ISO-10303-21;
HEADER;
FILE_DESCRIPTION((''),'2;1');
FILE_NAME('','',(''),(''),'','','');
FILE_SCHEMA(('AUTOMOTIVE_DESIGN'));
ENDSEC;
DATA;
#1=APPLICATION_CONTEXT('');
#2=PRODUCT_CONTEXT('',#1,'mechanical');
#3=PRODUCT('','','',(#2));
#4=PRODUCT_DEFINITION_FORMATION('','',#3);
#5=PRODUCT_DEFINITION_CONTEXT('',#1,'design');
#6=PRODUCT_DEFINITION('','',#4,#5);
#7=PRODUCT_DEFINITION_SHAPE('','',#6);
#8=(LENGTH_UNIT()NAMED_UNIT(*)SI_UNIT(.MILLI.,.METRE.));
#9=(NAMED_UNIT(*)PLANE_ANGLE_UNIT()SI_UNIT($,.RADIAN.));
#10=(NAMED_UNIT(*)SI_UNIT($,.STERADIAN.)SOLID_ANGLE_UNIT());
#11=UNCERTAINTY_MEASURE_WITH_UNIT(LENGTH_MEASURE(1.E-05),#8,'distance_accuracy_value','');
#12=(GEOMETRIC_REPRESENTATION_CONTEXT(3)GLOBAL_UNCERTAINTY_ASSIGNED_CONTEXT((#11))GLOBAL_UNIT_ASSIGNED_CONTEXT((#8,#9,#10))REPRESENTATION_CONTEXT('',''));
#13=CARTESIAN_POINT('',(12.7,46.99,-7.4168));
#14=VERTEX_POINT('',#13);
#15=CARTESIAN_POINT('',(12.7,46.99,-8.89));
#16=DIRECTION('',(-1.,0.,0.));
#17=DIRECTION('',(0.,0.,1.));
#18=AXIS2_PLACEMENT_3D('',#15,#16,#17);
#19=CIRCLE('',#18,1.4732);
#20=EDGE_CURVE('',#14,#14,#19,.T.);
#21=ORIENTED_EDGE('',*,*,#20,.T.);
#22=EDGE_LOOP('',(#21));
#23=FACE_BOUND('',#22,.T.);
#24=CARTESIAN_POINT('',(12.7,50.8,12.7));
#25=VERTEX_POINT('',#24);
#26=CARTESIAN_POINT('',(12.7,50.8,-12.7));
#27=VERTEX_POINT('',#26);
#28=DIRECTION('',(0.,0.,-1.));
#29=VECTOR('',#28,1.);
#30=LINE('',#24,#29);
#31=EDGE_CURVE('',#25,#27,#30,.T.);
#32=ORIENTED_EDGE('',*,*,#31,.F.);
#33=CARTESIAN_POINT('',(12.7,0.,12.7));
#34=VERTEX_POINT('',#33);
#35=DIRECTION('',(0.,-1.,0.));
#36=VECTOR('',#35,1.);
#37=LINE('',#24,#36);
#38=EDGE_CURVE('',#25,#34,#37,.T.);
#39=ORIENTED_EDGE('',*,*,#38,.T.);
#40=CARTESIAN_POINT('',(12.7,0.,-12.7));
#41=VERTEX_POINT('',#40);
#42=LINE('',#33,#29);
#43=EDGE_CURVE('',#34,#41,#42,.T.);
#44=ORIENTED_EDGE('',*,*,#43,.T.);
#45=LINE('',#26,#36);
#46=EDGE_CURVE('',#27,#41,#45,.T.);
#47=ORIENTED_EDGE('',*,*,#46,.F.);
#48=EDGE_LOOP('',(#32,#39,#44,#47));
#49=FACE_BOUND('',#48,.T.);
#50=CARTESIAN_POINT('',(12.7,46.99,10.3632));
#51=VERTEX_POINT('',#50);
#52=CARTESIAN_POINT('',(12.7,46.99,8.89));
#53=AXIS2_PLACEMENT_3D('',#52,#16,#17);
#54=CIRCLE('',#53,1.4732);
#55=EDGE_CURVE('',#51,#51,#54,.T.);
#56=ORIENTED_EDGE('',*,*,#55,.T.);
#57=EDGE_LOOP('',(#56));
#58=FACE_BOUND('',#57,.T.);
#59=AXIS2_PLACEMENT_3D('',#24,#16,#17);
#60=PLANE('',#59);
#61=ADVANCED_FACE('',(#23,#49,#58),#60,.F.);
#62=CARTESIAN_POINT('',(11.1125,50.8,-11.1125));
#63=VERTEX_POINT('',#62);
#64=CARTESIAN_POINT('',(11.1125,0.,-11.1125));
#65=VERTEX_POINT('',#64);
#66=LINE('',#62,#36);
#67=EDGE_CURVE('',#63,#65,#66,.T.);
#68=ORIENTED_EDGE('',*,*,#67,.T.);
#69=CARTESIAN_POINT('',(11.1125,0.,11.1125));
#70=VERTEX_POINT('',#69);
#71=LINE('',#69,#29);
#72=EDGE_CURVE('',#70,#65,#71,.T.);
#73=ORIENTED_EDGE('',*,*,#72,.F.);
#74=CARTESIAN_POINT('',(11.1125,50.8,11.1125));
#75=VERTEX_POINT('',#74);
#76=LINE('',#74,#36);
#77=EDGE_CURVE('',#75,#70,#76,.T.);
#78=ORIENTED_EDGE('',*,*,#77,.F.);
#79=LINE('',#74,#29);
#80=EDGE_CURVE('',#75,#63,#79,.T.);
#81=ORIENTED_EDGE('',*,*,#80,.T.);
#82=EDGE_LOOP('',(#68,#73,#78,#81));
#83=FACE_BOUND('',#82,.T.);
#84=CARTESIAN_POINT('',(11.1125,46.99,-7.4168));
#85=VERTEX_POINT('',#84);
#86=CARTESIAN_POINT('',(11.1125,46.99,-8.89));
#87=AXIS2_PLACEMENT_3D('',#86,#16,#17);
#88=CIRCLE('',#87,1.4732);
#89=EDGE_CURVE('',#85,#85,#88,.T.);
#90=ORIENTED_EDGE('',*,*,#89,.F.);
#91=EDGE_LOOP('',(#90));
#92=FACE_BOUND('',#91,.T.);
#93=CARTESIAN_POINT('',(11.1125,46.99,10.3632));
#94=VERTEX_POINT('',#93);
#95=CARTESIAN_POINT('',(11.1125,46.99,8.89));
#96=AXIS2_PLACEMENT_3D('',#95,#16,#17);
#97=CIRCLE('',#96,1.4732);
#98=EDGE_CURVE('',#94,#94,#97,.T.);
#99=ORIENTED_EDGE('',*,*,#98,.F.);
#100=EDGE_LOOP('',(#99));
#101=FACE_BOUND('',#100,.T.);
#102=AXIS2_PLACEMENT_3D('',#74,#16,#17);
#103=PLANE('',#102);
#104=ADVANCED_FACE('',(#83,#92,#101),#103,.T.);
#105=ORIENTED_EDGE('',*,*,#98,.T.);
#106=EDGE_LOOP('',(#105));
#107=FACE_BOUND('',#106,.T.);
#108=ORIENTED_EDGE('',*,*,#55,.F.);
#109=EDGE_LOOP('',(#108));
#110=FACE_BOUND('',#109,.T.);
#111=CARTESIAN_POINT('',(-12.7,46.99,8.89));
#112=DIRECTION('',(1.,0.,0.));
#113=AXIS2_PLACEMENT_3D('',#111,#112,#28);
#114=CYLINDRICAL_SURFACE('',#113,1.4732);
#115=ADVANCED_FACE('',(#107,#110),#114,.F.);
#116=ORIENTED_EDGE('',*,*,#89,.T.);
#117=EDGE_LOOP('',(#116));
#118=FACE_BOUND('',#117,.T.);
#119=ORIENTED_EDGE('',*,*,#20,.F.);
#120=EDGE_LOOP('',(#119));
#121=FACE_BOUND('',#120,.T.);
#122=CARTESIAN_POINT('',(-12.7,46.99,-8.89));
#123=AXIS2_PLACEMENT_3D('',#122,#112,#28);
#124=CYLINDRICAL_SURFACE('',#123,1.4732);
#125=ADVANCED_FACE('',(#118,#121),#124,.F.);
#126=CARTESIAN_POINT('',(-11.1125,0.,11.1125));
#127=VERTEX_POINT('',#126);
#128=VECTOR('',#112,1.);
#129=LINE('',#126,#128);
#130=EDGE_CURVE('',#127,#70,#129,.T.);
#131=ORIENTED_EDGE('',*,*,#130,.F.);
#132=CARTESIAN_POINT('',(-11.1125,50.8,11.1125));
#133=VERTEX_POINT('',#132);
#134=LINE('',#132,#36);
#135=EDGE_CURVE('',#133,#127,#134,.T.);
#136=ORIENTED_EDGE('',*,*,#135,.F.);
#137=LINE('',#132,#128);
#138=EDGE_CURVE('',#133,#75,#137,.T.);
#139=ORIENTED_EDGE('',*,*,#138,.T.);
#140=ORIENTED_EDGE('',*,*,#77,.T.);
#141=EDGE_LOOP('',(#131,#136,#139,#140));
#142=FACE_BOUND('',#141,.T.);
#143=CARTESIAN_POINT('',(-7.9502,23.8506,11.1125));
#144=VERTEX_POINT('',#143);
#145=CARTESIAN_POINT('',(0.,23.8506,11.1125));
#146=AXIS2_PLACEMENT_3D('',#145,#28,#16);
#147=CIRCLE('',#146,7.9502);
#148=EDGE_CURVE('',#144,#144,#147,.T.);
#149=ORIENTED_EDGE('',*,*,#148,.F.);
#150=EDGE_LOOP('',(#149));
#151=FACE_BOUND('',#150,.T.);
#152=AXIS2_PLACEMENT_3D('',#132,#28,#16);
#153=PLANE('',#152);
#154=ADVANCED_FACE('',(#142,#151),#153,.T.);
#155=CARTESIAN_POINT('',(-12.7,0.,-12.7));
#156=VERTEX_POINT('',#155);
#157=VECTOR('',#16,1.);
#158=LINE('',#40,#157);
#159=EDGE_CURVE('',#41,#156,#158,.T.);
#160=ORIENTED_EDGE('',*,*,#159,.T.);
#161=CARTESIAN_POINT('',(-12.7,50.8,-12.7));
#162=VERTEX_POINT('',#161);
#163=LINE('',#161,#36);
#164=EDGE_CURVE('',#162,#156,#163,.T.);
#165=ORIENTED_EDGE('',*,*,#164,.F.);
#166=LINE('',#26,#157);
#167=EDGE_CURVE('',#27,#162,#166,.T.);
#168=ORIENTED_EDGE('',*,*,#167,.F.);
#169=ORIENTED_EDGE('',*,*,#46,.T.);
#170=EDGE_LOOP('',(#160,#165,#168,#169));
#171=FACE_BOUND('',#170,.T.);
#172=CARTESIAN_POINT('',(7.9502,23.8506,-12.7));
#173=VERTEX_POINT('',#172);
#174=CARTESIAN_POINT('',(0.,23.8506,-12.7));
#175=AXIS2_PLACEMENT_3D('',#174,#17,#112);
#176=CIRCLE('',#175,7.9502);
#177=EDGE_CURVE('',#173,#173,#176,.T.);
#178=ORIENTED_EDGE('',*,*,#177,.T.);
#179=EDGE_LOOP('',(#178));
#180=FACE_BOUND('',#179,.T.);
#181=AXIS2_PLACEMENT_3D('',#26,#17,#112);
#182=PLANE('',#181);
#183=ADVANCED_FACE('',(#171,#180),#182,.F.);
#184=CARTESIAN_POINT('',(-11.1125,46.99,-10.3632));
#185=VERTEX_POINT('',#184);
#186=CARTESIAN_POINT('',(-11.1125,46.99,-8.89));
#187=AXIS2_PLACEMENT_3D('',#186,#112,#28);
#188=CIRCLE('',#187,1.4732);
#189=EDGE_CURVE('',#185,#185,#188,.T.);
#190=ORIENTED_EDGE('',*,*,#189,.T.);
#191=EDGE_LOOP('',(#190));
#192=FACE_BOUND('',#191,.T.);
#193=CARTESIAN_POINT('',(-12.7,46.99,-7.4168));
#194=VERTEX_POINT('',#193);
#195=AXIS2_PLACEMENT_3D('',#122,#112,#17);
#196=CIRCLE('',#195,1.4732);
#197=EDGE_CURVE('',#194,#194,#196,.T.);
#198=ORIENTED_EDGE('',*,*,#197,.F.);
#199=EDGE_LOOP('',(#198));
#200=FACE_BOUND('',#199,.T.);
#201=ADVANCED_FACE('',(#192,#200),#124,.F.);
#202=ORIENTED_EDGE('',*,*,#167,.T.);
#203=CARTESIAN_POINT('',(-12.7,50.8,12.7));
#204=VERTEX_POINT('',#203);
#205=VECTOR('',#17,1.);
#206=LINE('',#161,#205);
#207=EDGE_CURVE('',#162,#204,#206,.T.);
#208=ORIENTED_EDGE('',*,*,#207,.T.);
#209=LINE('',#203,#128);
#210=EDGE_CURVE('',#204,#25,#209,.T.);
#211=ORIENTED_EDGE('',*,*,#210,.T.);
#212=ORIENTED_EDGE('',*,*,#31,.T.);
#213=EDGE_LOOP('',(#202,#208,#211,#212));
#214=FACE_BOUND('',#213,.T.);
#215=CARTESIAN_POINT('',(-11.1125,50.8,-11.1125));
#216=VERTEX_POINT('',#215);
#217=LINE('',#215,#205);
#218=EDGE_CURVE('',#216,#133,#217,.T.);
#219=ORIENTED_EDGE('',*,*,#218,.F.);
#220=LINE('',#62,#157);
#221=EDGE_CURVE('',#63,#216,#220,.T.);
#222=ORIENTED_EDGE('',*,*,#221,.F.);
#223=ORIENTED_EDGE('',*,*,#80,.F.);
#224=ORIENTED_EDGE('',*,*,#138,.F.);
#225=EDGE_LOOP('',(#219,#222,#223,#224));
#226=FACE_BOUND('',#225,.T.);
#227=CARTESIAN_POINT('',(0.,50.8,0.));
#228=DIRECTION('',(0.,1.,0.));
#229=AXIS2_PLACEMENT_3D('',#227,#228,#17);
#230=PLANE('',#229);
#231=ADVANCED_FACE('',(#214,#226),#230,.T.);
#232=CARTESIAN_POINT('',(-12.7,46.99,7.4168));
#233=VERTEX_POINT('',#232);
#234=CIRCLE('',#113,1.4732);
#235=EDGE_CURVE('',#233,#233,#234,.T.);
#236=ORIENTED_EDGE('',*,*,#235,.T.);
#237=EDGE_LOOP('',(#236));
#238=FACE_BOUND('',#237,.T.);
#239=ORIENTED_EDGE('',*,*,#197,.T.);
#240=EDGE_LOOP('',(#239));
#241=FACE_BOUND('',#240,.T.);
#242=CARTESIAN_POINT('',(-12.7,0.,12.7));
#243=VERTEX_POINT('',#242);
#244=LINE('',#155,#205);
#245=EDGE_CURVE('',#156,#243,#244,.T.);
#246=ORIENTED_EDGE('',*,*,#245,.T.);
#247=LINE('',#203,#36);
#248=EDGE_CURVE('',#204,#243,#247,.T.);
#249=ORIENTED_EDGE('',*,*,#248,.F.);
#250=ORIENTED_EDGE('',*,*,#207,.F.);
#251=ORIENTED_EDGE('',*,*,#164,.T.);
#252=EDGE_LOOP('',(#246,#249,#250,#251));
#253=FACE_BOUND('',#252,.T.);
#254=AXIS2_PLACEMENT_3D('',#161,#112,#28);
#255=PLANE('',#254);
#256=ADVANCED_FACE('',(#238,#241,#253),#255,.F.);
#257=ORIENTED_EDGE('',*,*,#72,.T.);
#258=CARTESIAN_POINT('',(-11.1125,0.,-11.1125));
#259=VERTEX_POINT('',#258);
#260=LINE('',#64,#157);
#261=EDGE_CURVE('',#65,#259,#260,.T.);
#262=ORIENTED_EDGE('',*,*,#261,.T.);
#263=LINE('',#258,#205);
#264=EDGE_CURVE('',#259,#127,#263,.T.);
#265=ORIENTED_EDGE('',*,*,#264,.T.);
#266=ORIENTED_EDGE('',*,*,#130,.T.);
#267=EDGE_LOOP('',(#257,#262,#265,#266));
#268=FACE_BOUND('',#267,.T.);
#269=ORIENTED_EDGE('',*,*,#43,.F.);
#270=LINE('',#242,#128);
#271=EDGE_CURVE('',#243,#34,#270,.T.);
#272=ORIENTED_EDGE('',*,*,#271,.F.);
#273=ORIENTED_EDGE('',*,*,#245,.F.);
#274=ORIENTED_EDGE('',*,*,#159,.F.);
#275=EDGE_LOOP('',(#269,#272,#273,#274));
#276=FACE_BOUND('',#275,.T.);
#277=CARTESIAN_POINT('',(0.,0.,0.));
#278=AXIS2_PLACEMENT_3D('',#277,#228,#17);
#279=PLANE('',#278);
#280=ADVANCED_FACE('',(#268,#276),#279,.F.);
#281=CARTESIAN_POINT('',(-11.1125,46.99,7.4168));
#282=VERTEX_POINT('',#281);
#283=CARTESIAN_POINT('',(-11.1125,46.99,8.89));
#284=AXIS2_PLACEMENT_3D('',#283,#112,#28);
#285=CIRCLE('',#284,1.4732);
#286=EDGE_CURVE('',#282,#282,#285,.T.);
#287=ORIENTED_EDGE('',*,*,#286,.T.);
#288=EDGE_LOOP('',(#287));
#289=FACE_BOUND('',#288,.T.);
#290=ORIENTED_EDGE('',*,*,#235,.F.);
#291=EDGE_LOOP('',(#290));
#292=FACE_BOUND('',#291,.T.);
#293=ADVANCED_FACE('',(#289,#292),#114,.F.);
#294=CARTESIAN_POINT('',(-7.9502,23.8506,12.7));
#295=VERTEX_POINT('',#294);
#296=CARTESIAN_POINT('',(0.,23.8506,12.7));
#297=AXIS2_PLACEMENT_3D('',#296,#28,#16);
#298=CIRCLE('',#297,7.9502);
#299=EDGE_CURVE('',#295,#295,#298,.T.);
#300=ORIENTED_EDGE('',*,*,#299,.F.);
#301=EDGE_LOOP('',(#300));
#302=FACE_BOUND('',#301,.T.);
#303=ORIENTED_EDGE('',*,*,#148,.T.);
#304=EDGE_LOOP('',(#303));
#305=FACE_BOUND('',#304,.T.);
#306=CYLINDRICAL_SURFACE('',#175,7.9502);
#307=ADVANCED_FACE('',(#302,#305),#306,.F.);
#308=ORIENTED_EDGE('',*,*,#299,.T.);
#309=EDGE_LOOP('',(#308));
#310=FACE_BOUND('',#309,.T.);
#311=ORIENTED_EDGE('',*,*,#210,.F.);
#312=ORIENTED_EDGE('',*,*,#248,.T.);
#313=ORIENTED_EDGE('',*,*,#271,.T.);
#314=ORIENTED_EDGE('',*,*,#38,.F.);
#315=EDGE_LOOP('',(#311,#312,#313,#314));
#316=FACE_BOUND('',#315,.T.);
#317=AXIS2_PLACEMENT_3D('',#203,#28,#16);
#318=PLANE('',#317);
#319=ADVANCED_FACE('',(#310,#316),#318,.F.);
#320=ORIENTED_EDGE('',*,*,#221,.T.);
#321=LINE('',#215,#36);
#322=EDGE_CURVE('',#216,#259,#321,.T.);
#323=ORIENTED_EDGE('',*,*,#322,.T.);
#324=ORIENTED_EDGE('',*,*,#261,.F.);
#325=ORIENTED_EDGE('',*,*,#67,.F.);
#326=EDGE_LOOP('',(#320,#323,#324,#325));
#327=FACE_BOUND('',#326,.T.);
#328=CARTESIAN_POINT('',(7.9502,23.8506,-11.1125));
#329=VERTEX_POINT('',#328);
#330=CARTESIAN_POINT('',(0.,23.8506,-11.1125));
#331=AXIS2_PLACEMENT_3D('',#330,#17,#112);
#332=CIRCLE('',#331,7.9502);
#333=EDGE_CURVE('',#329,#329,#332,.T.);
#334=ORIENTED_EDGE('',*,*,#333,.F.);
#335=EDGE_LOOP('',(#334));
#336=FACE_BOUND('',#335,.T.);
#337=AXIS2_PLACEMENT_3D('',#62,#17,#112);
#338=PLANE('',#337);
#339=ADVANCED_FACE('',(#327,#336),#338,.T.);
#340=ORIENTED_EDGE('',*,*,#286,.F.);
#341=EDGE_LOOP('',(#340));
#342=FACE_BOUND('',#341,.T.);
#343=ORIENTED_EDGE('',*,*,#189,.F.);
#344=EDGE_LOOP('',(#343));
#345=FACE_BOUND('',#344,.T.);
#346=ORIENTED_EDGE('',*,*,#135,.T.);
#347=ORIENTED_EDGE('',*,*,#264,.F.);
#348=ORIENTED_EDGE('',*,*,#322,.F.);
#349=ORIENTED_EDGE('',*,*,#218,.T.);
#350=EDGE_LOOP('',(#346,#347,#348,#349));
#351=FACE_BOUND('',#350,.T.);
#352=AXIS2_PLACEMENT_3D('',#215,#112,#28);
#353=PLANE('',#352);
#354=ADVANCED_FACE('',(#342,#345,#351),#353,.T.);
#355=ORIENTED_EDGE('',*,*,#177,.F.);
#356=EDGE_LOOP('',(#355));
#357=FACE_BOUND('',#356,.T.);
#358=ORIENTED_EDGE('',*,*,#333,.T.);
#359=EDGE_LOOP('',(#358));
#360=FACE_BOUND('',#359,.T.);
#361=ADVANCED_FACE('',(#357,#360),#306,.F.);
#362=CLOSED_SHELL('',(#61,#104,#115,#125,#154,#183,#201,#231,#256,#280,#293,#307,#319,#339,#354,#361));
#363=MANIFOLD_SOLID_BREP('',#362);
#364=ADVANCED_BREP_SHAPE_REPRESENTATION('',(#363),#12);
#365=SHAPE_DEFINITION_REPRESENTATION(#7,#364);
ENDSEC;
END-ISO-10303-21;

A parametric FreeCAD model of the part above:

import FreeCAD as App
import Part
import Sketcher
Q = App.Units.Quantity


def add_polygon(sketch, points):
    """Adds a closed chain of lines whose ends are joined by coincident constraints."""
    first, n = sketch.GeometryCount, len(points)
    for a, b in zip(points, points[1:] + points[:1]):
        sketch.addGeometry(Part.LineSegment(App.Vector(*a, 0), App.Vector(*b, 0)), False)
    for i in range(n):
        sketch.addConstraint(Sketcher.Constraint("Coincident", first + i, 2, first + (i + 1) % n, 1))

doc = App.newDocument("Part")
body = doc.addObject("PartDesign::Body", "Body")

# Sketch on XZ plane
sketch1 = doc.addObject("Sketcher::SketchObject", "Sketch")
body.addObject(sketch1)
sketch1.AttachmentSupport = (doc.XZ_Plane, [""])
sketch1.MapMode = "FlatFace"
add_polygon(sketch1, [(-13, -13), (-13, 13), (13, 13), (13, -13)])  # lines 0-3
add_polygon(sketch1, [(11, 11), (-11, 11), (-11, -11), (11, -11)])  # lines 4-7
sketch1.addConstraint(Sketcher.Constraint("Vertical", 0))
sketch1.addConstraint(Sketcher.Constraint("Horizontal", 1))
sketch1.addConstraint(Sketcher.Constraint("Vertical", 2))
sketch1.addConstraint(Sketcher.Constraint("Horizontal", 3))
sketch1.addConstraint(Sketcher.Constraint("Horizontal", 4))
sketch1.addConstraint(Sketcher.Constraint("Vertical", 5))
sketch1.addConstraint(Sketcher.Constraint("Horizontal", 6))
sketch1.addConstraint(Sketcher.Constraint("Vertical", 7))
sketch1.addConstraint(Sketcher.Constraint("Symmetric", 0, 2, 2, 2, -1, 1))
sketch1.addConstraint(Sketcher.Constraint("Symmetric", 4, 2, 6, 2, -1, 1))
sketch1.addConstraint(Sketcher.Constraint("Equal", 3, 0))
sketch1.addConstraint(Sketcher.Constraint("Equal", 6, 5))
sketch1.addConstraint(Sketcher.Constraint("DistanceX", 1, 1, 1, 2, Q("1 in")))
sketch1.addConstraint(Sketcher.Constraint("DistanceX", 4, 2, 4, 1, Q("0.875 in")))
pad1 = doc.addObject("PartDesign::Pad", "Pad")
body.addObject(pad1)
pad1.Profile = sketch1
pad1.Length = Q("2 in")
pad1.Reversed = True

# Sketch on XY plane
sketch2 = doc.addObject("Sketcher::SketchObject", "Sketch001")
body.addObject(sketch2)
sketch2.AttachmentSupport = (doc.XY_Plane, [""])
sketch2.MapMode = "FlatFace"
sketch2.AttachmentOffset = App.Placement(App.Vector(0, 0, 0.5 * 25.4), App.Rotation())
sketch2.addGeometry(Part.Circle(App.Vector(0, 24, 0), App.Vector(0, 0, 1), 8), False)
sketch2.addConstraint(Sketcher.Constraint("PointOnObject", 0, 3, -2))
sketch2.addConstraint(Sketcher.Constraint("Diameter", 0, Q("0.626 in")))
sketch2.addConstraint(Sketcher.Constraint("DistanceY", -1, 1, 0, 3, Q("0.939 in")))
pocket1 = doc.addObject("PartDesign::Pocket", "Pocket")
body.addObject(pocket1)
pocket1.Profile = sketch2
pocket1.Type = "ThroughAll"
pocket1.Midplane = True

# Sketch on YZ plane
sketch3 = doc.addObject("Sketcher::SketchObject", "Sketch002")
body.addObject(sketch3)
sketch3.AttachmentSupport = (doc.YZ_Plane, [""])
sketch3.MapMode = "FlatFace"
sketch3.AttachmentOffset = App.Placement(App.Vector(0, 0, 0.5 * 25.4), App.Rotation())
sketch3.addGeometry(Part.Circle(App.Vector(47, 8.9, 0), App.Vector(0, 0, 1), 1.5), False)
sketch3.addGeometry(Part.Circle(App.Vector(47, -8.9, 0), App.Vector(0, 0, 1), 1.5), False)
sketch3.addConstraint(Sketcher.Constraint("Equal", 0, 1))
sketch3.addConstraint(Sketcher.Constraint("Symmetric", 0, 3, 1, 3, -1))
sketch3.addConstraint(Sketcher.Constraint("Diameter", 0, Q("0.116 in")))
sketch3.addConstraint(Sketcher.Constraint("DistanceY", 1, 3, 0, 3, Q("0.7 in")))
sketch3.addConstraint(Sketcher.Constraint("DistanceX", -1, 1, 0, 3, Q("1.85 in")))
pocket2 = doc.addObject("PartDesign::Pocket", "Pocket001")
body.addObject(pocket2)
pocket2.Profile = sketch3
pocket2.Type = "ThroughAll"
pocket2.Midplane = True

doc.recompute()
